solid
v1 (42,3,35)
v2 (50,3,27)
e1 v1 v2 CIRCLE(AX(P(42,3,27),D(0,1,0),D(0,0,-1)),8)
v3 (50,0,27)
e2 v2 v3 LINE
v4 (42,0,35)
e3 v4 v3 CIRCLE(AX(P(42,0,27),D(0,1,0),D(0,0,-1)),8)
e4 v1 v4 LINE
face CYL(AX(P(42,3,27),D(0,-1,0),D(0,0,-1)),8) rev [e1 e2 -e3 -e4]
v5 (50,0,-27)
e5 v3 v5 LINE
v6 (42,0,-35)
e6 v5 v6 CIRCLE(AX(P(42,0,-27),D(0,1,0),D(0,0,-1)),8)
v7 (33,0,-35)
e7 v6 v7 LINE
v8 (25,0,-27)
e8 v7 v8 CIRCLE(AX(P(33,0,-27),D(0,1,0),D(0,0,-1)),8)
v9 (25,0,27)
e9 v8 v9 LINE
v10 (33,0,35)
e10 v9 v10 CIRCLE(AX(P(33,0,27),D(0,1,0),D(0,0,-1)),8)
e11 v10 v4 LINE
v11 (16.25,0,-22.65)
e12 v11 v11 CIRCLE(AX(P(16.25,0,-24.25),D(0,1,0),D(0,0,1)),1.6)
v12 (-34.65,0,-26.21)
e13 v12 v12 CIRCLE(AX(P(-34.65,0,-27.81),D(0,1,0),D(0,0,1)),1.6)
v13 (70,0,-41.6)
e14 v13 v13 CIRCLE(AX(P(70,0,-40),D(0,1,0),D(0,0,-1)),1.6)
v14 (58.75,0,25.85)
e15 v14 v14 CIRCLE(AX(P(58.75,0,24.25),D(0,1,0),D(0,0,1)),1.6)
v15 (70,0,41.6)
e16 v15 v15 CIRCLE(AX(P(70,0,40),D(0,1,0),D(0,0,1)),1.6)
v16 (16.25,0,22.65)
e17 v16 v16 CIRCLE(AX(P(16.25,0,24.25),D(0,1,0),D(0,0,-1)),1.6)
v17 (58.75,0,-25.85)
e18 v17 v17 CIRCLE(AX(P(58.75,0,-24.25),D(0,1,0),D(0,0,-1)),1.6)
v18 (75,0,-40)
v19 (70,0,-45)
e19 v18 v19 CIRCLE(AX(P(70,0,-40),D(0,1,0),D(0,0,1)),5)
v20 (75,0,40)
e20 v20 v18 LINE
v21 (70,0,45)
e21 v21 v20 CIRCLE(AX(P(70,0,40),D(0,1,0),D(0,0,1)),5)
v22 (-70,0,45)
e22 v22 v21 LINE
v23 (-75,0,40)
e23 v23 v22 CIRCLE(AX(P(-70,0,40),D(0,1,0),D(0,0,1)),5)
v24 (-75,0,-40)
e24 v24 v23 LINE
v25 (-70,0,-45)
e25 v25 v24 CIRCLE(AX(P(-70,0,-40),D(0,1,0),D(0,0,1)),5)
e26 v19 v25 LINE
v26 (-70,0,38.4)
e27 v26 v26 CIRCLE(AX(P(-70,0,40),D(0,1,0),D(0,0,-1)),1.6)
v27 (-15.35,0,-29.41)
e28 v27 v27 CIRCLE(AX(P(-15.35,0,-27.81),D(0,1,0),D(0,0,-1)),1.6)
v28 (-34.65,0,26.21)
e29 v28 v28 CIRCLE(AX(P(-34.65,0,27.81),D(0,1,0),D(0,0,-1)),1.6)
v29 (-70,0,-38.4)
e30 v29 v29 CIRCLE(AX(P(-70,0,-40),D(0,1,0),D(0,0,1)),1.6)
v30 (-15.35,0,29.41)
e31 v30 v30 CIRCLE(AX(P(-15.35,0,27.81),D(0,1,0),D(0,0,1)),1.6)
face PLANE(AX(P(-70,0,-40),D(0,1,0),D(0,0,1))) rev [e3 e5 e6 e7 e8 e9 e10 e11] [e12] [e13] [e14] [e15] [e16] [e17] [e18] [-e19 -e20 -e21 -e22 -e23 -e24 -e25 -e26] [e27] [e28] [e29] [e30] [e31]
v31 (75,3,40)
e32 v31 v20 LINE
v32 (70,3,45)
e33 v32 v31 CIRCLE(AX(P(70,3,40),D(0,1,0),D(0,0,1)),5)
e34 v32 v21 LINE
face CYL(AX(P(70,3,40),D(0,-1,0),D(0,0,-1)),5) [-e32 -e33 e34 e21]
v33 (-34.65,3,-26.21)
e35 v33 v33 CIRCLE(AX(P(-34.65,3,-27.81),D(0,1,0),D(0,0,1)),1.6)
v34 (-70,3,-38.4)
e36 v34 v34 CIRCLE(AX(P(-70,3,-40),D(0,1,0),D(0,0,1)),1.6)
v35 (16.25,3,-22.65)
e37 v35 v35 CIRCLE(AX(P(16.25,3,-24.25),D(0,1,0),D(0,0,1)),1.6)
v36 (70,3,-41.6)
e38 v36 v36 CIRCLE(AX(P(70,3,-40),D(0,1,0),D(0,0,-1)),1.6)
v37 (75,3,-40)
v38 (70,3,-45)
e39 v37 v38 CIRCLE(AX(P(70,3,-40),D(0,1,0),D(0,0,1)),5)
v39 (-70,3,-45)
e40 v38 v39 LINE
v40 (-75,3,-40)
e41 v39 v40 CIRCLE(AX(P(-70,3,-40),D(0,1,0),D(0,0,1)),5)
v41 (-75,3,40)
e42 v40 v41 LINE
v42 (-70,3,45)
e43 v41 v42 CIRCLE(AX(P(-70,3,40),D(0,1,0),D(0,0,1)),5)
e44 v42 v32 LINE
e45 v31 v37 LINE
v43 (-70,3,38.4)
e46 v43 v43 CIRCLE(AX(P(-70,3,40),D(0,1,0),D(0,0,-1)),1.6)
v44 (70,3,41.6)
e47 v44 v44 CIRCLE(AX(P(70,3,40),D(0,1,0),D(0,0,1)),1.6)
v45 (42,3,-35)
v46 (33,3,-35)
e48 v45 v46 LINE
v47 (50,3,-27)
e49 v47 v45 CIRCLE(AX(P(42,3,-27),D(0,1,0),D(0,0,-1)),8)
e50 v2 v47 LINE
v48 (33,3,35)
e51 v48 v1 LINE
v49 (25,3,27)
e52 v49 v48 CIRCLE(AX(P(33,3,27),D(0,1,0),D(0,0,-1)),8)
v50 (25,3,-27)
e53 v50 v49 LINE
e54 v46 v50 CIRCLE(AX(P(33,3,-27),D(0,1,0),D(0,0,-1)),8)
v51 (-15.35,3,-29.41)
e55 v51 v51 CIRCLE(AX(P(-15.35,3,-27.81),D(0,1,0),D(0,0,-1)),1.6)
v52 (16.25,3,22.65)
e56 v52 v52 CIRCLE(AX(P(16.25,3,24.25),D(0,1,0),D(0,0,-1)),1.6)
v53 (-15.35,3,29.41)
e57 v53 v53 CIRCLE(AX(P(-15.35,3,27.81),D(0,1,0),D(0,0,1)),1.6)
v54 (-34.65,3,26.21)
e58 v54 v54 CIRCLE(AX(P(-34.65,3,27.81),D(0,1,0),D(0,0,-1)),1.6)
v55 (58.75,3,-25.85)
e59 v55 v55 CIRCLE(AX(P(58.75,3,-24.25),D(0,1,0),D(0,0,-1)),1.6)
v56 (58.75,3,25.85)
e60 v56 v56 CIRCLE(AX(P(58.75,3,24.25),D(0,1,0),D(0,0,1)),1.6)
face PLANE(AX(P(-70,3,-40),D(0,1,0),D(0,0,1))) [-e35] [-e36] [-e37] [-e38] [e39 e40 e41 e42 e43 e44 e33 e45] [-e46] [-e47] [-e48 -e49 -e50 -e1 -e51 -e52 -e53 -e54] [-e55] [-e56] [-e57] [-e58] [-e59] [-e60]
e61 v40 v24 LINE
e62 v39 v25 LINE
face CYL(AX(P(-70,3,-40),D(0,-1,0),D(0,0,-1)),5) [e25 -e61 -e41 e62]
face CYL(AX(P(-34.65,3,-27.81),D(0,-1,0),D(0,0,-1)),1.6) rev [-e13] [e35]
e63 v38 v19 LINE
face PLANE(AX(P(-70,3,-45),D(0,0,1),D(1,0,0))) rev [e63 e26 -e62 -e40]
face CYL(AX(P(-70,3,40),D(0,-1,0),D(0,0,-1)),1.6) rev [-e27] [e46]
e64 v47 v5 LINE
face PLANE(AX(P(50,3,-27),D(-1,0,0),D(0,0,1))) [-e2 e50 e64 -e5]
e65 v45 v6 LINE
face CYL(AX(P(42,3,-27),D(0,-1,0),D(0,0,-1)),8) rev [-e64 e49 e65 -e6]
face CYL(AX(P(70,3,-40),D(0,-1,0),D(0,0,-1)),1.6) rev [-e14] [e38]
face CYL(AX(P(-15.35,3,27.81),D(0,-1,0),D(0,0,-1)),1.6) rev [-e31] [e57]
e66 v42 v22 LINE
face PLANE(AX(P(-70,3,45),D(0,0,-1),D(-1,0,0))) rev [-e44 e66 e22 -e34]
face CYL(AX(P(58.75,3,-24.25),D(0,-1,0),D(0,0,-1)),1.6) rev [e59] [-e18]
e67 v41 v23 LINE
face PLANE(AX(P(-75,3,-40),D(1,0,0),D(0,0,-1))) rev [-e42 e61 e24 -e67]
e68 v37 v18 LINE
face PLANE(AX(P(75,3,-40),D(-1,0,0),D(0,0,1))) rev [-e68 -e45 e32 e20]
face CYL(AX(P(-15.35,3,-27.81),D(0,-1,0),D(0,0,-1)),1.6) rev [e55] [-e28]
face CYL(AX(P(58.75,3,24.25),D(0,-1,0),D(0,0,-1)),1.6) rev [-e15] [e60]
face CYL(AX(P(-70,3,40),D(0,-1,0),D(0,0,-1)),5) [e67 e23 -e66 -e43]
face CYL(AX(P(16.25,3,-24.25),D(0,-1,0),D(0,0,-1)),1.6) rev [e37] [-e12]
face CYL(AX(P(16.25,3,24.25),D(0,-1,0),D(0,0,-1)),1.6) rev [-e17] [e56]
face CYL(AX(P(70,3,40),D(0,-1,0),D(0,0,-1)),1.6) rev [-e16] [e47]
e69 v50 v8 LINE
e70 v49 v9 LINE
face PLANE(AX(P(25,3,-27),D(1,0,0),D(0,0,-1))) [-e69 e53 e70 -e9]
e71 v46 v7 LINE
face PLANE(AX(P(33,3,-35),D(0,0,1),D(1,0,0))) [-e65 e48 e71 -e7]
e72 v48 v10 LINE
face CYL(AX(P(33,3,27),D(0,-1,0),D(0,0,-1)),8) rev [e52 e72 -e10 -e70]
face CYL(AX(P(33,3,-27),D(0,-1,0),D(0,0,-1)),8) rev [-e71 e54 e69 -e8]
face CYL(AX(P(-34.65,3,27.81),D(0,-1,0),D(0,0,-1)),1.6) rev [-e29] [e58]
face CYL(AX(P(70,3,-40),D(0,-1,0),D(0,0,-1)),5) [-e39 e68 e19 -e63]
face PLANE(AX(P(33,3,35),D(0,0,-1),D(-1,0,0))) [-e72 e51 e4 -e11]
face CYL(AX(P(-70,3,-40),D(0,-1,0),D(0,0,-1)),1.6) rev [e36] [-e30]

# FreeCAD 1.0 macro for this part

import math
import FreeCAD as App
import Part
import Sketcher

doc = App.newDocument("Part")
body = doc.addObject("PartDesign::Body", "Body")

sketch1 = body.newObject("Sketcher::SketchObject", "Sketch")
sketch1.AttachmentSupport = (doc.getObject("XZ_Plane"), [""])
sketch1.MapMode = "FlatFace"
sketch1.addGeometry(Part.LineSegment(App.Vector(70, -45, 0), App.Vector(-70, -45, 0)), False)
sketch1.addGeometry(Part.ArcOfCircle(Part.Circle(App.Vector(-70, -40, 0), App.Vector(0, 0, 1), 5), math.radians(180), math.radians(270)), False)
sketch1.addGeometry(Part.LineSegment(App.Vector(-75, -40, 0), App.Vector(-75, 40, 0)), False)
sketch1.addGeometry(Part.ArcOfCircle(Part.Circle(App.Vector(-70, 40, 0), App.Vector(0, 0, 1), 5), math.radians(90), math.radians(180)), False)
sketch1.addGeometry(Part.LineSegment(App.Vector(-70, 45, 0), App.Vector(70, 45, 0)), False)
sketch1.addGeometry(Part.ArcOfCircle(Part.Circle(App.Vector(70, 40, 0), App.Vector(0, 0, 1), 5), math.radians(0), math.radians(90)), False)
sketch1.addGeometry(Part.LineSegment(App.Vector(75, 40, 0), App.Vector(75, -40, 0)), False)
sketch1.addGeometry(Part.ArcOfCircle(Part.Circle(App.Vector(70, -40, 0), App.Vector(0, 0, 1), 5), math.radians(-90), math.radians(0)), False)
sketch1.addGeometry(Part.Circle(App.Vector(70, 40, 0), App.Vector(0, 0, 1), 1.6), False)
sketch1.addGeometry(Part.Circle(App.Vector(58.75, 24.25, 0), App.Vector(0, 0, 1), 1.6), False)
sketch1.addGeometry(Part.Circle(App.Vector(16.25, 24.25, 0), App.Vector(0, 0, 1), 1.6), False)
sketch1.addGeometry(Part.LineSegment(App.Vector(33, -35, 0), App.Vector(42, -35, 0)), False)
sketch1.addGeometry(Part.ArcOfCircle(Part.Circle(App.Vector(42, -27, 0), App.Vector(0, 0, 1), 8), math.radians(-90), math.radians(0)), False)
sketch1.addGeometry(Part.LineSegment(App.Vector(50, -27, 0), App.Vector(50, 27, 0)), False)
sketch1.addGeometry(Part.ArcOfCircle(Part.Circle(App.Vector(42, 27, 0), App.Vector(0, 0, 1), 8), math.radians(0), math.radians(90)), False)
sketch1.addGeometry(Part.LineSegment(App.Vector(42, 35, 0), App.Vector(33, 35, 0)), False)
sketch1.addGeometry(Part.ArcOfCircle(Part.Circle(App.Vector(33, 27, 0), App.Vector(0, 0, 1), 8), math.radians(90), math.radians(180)), False)
sketch1.addGeometry(Part.LineSegment(App.Vector(25, 27, 0), App.Vector(25, -27, 0)), False)
sketch1.addGeometry(Part.ArcOfCircle(Part.Circle(App.Vector(33, -27, 0), App.Vector(0, 0, 1), 8), math.radians(-180), math.radians(-90)), False)
sketch1.addGeometry(Part.Circle(App.Vector(-15.35, 27.81, 0), App.Vector(0, 0, 1), 1.6), False)
sketch1.addGeometry(Part.Circle(App.Vector(-34.65, 27.81, 0), App.Vector(0, 0, 1), 1.6), False)
sketch1.addGeometry(Part.Circle(App.Vector(-70, 40, 0), App.Vector(0, 0, 1), 1.6), False)
sketch1.addGeometry(Part.Circle(App.Vector(58.75, -24.25, 0), App.Vector(0, 0, 1), 1.6), False)
sketch1.addGeometry(Part.Circle(App.Vector(70, -40, 0), App.Vector(0, 0, 1), 1.6), False)
sketch1.addGeometry(Part.Circle(App.Vector(16.25, -24.25, 0), App.Vector(0, 0, 1), 1.6), False)
sketch1.addGeometry(Part.Circle(App.Vector(-15.35, -27.81, 0), App.Vector(0, 0, 1), 1.6), False)
sketch1.addGeometry(Part.Circle(App.Vector(-34.65, -27.81, 0), App.Vector(0, 0, 1), 1.6), False)
sketch1.addGeometry(Part.Circle(App.Vector(-70, -40, 0), App.Vector(0, 0, 1), 1.6), False)
sketch1.addConstraint(Sketcher.Constraint("Tangent", 0, 2, 1, 2))
sketch1.addConstraint(Sketcher.Constraint("Tangent", 1, 1, 2, 1))
sketch1.addConstraint(Sketcher.Constraint("Tangent", 2, 2, 3, 2))
sketch1.addConstraint(Sketcher.Constraint("Tangent", 3, 1, 4, 1))
sketch1.addConstraint(Sketcher.Constraint("Tangent", 4, 2, 5, 2))
sketch1.addConstraint(Sketcher.Constraint("Tangent", 5, 1, 6, 1))
sketch1.addConstraint(Sketcher.Constraint("Tangent", 6, 2, 7, 2))
sketch1.addConstraint(Sketcher.Constraint("Tangent", 7, 1, 0, 1))
sketch1.addConstraint(Sketcher.Constraint("Tangent", 11, 2, 12, 1))
sketch1.addConstraint(Sketcher.Constraint("Tangent", 12, 2, 13, 1))
sketch1.addConstraint(Sketcher.Constraint("Tangent", 13, 2, 14, 1))
sketch1.addConstraint(Sketcher.Constraint("Tangent", 14, 2, 15, 1))
sketch1.addConstraint(Sketcher.Constraint("Tangent", 15, 2, 16, 1))
sketch1.addConstraint(Sketcher.Constraint("Tangent", 16, 2, 17, 1))
sketch1.addConstraint(Sketcher.Constraint("Tangent", 17, 2, 18, 1))
sketch1.addConstraint(Sketcher.Constraint("Tangent", 18, 2, 11, 1))
sketch1.addConstraint(Sketcher.Constraint("Horizontal", 0))
sketch1.addConstraint(Sketcher.Constraint("Vertical", 2))
sketch1.addConstraint(Sketcher.Constraint("Horizontal", 4))
sketch1.addConstraint(Sketcher.Constraint("Vertical", 6))
sketch1.addConstraint(Sketcher.Constraint("Horizontal", 11))
sketch1.addConstraint(Sketcher.Constraint("Vertical", 13))
sketch1.addConstraint(Sketcher.Constraint("Horizontal", 15))
sketch1.addConstraint(Sketcher.Constraint("Vertical", 17))
sketch1.addConstraint(Sketcher.Constraint("Coincident", 8, 3, 5, 3))
sketch1.addConstraint(Sketcher.Constraint("Coincident", 21, 3, 3, 3))
sketch1.addConstraint(Sketcher.Constraint("Coincident", 23, 3, 7, 3))
sketch1.addConstraint(Sketcher.Constraint("Coincident", 27, 3, 1, 3))
sketch1.addConstraint(Sketcher.Constraint("Equal", 1, 3))
sketch1.addConstraint(Sketcher.Constraint("Equal", 3, 5))
sketch1.addConstraint(Sketcher.Constraint("Equal", 5, 7))
sketch1.addConstraint(Sketcher.Constraint("Equal", 8, 9))
sketch1.addConstraint(Sketcher.Constraint("Equal", 9, 10))
sketch1.addConstraint(Sketcher.Constraint("Equal", 12, 14))
sketch1.addConstraint(Sketcher.Constraint("Equal", 14, 16))
sketch1.addConstraint(Sketcher.Constraint("Equal", 16, 18))
sketch1.addConstraint(Sketcher.Constraint("Equal", 10, 19))
sketch1.addConstraint(Sketcher.Constraint("Equal", 19, 20))
sketch1.addConstraint(Sketcher.Constraint("Equal", 20, 21))
sketch1.addConstraint(Sketcher.Constraint("Equal", 21, 22))
sketch1.addConstraint(Sketcher.Constraint("Equal", 22, 23))
sketch1.addConstraint(Sketcher.Constraint("Equal", 23, 24))
sketch1.addConstraint(Sketcher.Constraint("Equal", 24, 25))
sketch1.addConstraint(Sketcher.Constraint("Equal", 25, 26))
sketch1.addConstraint(Sketcher.Constraint("Equal", 26, 27))
sketch1.addConstraint(Sketcher.Constraint("Symmetric", 1, 3, 5, 3, -1, 1))
sketch1.addConstraint(Sketcher.Constraint("Symmetric", 9, 3, 22, 3, -1))
sketch1.addConstraint(Sketcher.Constraint("Symmetric", 10, 3, 24, 3, -1))
sketch1.addConstraint(Sketcher.Constraint("Symmetric", 19, 3, 25, 3, -1))
sketch1.addConstraint(Sketcher.Constraint("Symmetric", 20, 3, 26, 3, -1))
sketch1.addConstraint(Sketcher.Constraint("Horizontal", 9, 3, 10, 3))
sketch1.addConstraint(Sketcher.Constraint("Horizontal", 19, 3, 20, 3))
sketch1.addConstraint(Sketcher.Constraint("Radius", 1, 5.0))
sketch1.addConstraint(Sketcher.Constraint("Radius", 12, 8.0))
sketch1.addConstraint(Sketcher.Constraint("Diameter", 8, 3.2))
sketch1.addConstraint(Sketcher.Constraint("DistanceX", 0, 2, 0, 1, 140.0))
sketch1.addConstraint(Sketcher.Constraint("DistanceX", 11, 1, 11, 2, 9.0))
sketch1.addConstraint(Sketcher.Constraint("DistanceY", 2, 1, 2, 2, 80.0))
sketch1.addConstraint(Sketcher.Constraint("DistanceY", 13, 1, 13, 2, 54.0))
sketch1.addConstraint(Sketcher.Constraint("DistanceX", -1, 1, 12, 3, 42.0))
sketch1.addConstraint(Sketcher.Constraint("DistanceY", 12, 3, -1, 1, 27.0))
sketch1.addConstraint(Sketcher.Constraint("DistanceX", 10, 3, 9, 3, 42.5))
sketch1.addConstraint(Sketcher.Constraint("DistanceX", 19, 3, 10, 3, 31.6))
sketch1.addConstraint(Sketcher.Constraint("DistanceX", 20, 3, 19, 3, 19.3))
sketch1.addConstraint(Sketcher.Constraint("DistanceY", 22, 3, 9, 3, 48.5))
sketch1.addConstraint(Sketcher.Constraint("DistanceX", -1, 1, 9, 3, 58.75))
sketch1.addConstraint(Sketcher.Constraint("DistanceY", -1, 1, 19, 3, 27.81))
pad1 = body.newObject("PartDesign::Pad", "Pad")
pad1.Profile = sketch1
pad1.Length = 3
pad1.Reversed = True

doc.recompute()
